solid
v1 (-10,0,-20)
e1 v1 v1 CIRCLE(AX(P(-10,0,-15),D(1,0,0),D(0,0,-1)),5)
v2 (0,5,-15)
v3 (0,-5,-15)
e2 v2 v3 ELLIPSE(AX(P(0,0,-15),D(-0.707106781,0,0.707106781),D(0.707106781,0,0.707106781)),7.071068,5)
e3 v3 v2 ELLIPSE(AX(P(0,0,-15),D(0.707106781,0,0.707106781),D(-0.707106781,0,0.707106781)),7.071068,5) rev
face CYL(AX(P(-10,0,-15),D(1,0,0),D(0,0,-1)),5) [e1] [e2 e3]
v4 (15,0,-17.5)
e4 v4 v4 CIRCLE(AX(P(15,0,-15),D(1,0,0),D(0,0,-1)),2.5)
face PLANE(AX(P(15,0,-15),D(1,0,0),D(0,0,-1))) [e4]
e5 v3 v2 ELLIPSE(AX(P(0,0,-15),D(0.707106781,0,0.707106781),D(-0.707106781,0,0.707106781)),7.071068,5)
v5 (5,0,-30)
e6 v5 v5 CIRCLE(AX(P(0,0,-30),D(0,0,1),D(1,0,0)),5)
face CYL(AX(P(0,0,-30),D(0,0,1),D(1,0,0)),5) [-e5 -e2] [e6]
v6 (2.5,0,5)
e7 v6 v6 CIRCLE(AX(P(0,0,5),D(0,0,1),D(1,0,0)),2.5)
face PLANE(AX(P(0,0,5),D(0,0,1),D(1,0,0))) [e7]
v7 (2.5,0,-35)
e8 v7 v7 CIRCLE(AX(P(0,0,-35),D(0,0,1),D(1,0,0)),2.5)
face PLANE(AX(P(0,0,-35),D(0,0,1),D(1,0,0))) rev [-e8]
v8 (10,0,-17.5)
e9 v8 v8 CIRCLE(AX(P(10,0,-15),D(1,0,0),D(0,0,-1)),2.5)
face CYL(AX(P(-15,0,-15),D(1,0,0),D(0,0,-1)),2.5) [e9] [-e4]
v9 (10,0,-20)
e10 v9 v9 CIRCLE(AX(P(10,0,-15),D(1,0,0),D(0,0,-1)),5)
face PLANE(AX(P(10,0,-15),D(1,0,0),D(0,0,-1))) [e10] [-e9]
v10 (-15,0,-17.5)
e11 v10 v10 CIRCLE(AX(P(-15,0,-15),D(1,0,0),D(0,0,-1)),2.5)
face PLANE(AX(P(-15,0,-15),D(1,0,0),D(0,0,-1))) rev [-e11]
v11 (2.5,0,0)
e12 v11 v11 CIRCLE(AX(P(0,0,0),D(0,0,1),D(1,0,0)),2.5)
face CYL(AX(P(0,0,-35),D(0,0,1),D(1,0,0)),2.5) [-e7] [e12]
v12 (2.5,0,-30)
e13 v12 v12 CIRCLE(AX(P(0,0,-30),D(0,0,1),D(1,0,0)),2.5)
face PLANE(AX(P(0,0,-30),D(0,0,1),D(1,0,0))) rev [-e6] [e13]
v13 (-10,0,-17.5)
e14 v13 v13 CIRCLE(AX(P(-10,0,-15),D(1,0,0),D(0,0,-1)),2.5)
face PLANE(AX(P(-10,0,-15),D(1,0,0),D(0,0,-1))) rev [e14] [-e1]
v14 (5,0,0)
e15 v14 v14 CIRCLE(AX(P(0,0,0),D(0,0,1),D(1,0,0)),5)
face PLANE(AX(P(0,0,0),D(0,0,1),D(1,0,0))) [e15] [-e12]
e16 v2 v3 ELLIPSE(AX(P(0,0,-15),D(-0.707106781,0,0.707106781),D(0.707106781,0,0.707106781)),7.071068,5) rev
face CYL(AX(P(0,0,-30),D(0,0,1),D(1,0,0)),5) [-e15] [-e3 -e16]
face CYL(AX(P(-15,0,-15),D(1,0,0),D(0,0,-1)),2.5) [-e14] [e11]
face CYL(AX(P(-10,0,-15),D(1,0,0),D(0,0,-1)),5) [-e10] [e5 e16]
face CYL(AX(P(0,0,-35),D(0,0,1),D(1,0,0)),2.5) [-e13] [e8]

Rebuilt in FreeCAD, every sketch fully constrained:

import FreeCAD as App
import Part
import Sketcher
from FreeCAD import Vector

doc = App.newDocument("Part")
body = doc.addObject("PartDesign::Body", "Body")

sketch1 = body.newObject("Sketcher::SketchObject", "Sketch")
sketch1.AttachmentSupport = (doc.getObject("XY_Plane"), [""])
sketch1.MapMode = "FlatFace"
sketch1.addGeometry(Part.Circle(Vector(0, 0, 0), Vector(0, 0, 1), 5), False)
sketch1.addConstraint([
    Sketcher.Constraint("Coincident", 0, 3, -1, 1),
    Sketcher.Constraint("Diameter", 0, 10.0),
])
pad1 = body.newObject("PartDesign::Pad", "Pad")
pad1.Profile = sketch1
pad1.Length = 30
pad1.Reversed = True

sketch2 = body.newObject("Sketcher::SketchObject", "Sketch001")
sketch2.AttachmentSupport = (doc.getObject("YZ_Plane"), [""])
sketch2.MapMode = "FlatFace"
sketch2.addGeometry(Part.Circle(Vector(0, -15, 0), Vector(0, 0, 1), 5), False)
sketch2.addConstraint([
    Sketcher.Constraint("PointOnObject", 0, 3, -2),
    Sketcher.Constraint("Diameter", 0, 10.0),
    Sketcher.Constraint("DistanceY", 0, 3, -1, 1, 15.0),
])
pad2 = body.newObject("PartDesign::Pad", "Pad001")
pad2.Profile = sketch2
pad2.Type = "TwoLengths"
pad2.Length = 10
pad2.Length2 = 10

sketch3 = body.newObject("Sketcher::SketchObject", "Sketch002")
sketch3.AttachmentSupport = (doc.getObject("YZ_Plane"), [""])
sketch3.MapMode = "FlatFace"
sketch3.AttachmentOffset = App.Placement(Vector(0, 0, 10), App.Rotation())
sketch3.addGeometry(Part.Circle(Vector(0, -15, 0), Vector(0, 0, 1), 2.5), False)
sketch3.addConstraint([
    Sketcher.Constraint("PointOnObject", 0, 3, -2),
    Sketcher.Constraint("Diameter", 0, 5.0),
    Sketcher.Constraint("DistanceY", 0, 3, -1, 1, 15.0),
])
pad3 = body.newObject("PartDesign::Pad", "Pad002")
pad3.Profile = sketch3
pad3.Type = "TwoLengths"
pad3.Length = 5
pad3.Length2 = 25

sketch4 = body.newObject("Sketcher::SketchObject", "Sketch003")
sketch4.AttachmentSupport = (doc.getObject("XY_Plane"), [""])
sketch4.MapMode = "FlatFace"
sketch4.addGeometry(Part.Circle(Vector(0, 0, 0), Vector(0, 0, 1), 2.5), False)
sketch4.addConstraint([
    Sketcher.Constraint("Coincident", 0, 3, -1, 1),
    Sketcher.Constraint("Diameter", 0, 5.0),
])
pad4 = body.newObject("PartDesign::Pad", "Pad003")
pad4.Profile = sketch4
pad4.Type = "TwoLengths"
pad4.Length = 5
pad4.Length2 = 35

doc.recompute()
